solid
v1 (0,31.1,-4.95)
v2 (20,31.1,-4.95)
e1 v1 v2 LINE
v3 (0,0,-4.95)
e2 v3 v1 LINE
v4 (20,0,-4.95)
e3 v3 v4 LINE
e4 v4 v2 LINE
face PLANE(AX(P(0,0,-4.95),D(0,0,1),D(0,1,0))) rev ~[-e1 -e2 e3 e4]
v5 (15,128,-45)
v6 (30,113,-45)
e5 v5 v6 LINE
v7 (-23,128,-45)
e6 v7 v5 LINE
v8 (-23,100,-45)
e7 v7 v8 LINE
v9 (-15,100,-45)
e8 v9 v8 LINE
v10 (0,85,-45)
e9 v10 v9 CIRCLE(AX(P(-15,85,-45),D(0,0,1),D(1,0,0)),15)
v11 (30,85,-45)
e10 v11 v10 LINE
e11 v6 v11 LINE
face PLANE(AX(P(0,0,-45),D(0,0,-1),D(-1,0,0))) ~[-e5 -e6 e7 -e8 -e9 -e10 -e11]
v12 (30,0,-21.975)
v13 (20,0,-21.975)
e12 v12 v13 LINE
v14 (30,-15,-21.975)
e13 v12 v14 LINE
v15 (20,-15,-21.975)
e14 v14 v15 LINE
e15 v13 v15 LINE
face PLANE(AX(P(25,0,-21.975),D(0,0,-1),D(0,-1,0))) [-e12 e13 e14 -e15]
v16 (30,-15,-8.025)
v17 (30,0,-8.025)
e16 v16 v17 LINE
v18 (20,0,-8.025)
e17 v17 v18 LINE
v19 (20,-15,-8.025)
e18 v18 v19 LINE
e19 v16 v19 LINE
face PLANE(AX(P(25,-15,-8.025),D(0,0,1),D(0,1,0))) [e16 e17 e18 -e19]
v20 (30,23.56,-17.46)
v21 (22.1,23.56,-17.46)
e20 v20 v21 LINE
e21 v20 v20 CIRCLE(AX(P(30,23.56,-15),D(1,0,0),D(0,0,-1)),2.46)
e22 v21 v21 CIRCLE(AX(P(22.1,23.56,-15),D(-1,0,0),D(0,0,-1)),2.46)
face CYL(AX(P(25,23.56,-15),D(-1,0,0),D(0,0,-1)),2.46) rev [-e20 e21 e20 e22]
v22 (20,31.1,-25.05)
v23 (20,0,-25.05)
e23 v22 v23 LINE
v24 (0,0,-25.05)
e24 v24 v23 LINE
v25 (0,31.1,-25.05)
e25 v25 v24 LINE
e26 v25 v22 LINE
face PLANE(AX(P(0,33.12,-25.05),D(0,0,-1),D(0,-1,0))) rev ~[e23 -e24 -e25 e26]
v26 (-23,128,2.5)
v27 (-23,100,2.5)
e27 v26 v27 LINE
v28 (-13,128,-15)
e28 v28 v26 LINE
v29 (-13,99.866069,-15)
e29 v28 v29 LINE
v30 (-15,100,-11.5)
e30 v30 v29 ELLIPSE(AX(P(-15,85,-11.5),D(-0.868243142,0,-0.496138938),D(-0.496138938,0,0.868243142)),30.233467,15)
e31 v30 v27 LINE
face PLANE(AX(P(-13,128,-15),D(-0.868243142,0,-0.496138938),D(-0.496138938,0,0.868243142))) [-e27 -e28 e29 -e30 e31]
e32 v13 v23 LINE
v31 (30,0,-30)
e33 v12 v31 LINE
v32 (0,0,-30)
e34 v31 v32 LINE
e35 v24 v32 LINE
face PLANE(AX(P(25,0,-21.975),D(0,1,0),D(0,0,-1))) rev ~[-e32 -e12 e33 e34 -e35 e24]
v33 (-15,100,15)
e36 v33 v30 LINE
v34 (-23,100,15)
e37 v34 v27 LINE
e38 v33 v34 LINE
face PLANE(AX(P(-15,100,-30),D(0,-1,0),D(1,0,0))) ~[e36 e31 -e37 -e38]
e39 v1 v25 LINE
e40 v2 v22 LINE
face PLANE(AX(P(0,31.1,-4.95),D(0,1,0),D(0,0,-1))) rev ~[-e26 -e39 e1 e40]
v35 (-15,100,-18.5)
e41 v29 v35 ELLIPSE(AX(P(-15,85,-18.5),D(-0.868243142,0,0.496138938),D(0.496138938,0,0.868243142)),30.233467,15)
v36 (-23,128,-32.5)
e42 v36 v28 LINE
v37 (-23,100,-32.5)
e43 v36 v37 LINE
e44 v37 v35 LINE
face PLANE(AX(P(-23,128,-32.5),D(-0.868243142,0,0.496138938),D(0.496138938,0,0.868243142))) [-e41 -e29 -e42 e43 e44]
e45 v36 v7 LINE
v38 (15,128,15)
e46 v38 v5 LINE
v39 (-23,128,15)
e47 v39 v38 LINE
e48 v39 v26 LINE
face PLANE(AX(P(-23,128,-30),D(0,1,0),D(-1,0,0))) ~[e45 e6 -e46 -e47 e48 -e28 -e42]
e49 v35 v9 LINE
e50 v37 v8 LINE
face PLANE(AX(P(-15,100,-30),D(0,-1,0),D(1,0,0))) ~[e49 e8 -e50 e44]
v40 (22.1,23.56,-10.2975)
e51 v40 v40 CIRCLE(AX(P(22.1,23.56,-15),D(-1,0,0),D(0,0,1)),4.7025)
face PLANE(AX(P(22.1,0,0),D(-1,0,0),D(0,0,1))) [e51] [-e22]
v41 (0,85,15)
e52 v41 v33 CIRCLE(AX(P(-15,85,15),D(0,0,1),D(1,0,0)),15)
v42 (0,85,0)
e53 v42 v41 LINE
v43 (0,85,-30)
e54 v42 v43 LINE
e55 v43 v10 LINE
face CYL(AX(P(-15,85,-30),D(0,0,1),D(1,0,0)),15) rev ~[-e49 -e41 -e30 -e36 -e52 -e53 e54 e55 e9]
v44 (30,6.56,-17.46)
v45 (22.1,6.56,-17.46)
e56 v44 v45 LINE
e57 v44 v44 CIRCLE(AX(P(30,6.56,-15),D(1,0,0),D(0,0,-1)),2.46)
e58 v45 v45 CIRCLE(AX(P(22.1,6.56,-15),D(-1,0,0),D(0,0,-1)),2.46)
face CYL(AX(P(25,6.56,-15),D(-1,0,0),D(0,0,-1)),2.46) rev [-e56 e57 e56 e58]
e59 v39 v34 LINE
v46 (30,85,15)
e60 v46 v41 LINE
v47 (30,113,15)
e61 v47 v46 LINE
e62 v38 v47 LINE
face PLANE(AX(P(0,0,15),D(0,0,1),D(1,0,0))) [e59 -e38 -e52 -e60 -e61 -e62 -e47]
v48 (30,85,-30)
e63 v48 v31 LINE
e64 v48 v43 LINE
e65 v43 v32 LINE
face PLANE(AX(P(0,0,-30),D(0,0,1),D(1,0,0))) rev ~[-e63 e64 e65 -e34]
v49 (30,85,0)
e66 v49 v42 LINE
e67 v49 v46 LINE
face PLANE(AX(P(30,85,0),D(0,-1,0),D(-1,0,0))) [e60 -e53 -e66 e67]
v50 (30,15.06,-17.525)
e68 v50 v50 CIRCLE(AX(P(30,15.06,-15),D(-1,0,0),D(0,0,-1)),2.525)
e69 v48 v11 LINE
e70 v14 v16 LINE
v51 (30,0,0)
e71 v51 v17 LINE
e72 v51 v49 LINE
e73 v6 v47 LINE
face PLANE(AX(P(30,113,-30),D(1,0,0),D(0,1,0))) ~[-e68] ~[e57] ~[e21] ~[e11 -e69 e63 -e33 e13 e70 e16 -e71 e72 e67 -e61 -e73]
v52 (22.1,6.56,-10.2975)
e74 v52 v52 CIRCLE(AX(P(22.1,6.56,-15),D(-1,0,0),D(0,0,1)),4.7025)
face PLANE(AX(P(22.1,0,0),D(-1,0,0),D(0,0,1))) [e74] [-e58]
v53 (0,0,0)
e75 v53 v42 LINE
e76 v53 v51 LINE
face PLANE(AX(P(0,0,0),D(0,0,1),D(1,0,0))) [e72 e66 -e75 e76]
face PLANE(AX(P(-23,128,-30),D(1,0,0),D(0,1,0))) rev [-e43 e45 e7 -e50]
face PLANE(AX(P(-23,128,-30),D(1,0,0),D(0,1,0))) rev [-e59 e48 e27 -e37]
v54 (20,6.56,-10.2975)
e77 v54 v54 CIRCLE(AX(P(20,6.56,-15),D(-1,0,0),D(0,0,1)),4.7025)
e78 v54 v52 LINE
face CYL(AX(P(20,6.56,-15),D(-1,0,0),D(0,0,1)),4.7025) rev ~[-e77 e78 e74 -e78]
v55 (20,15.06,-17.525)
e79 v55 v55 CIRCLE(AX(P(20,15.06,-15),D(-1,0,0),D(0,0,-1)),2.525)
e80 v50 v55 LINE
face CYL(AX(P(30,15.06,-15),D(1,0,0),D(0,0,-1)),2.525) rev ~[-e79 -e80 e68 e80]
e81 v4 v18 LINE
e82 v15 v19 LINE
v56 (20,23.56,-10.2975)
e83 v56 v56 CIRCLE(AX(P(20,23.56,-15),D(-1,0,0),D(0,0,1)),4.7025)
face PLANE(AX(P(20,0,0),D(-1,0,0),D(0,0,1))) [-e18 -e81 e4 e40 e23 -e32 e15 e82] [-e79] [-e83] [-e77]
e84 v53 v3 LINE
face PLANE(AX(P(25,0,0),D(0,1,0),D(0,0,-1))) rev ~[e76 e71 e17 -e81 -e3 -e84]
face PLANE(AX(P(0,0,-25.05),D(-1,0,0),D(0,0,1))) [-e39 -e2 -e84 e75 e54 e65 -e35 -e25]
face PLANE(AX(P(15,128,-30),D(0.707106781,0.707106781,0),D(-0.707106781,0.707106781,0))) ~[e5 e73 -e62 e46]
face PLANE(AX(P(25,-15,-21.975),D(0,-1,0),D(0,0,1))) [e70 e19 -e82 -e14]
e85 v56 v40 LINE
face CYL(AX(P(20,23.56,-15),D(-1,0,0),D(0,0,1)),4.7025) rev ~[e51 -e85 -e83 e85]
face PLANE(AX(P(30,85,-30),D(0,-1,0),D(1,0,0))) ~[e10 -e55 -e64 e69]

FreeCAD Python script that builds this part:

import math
import FreeCAD as App
import Part
import Sketcher

V = App.Vector
Q = App.Units.Quantity


def add_polygon(sketch, points):
    """Adds a closed chain of lines whose ends are joined by coincident constraints."""
    first, n = sketch.GeometryCount, len(points)
    for a, b in zip(points, points[1:] + points[:1]):
        sketch.addGeometry(Part.LineSegment(App.Vector(*a, 0), App.Vector(*b, 0)), False)
    for i in range(n):
        sketch.addConstraint(Sketcher.Constraint("Coincident", first + i, 2, first + (i + 1) % n, 1))

doc = App.newDocument("Part")
body = doc.addObject("PartDesign::Body", "Body")

# Sketch on XY plane
sketch1 = body.newObject("Sketcher::SketchObject", "Sketch")
sketch1.AttachmentSupport = (doc.getObject("XY_Plane"), [""])
sketch1.MapMode = "FlatFace"
add_polygon(sketch1, [(0, 40), (0, 0), (25, 0), (25, 40)])  # lines 0-3
sketch1.addConstraint(Sketcher.Constraint("Vertical", 0))
sketch1.addConstraint(Sketcher.Constraint("Horizontal", 1))
sketch1.addConstraint(Sketcher.Constraint("Vertical", 2))
sketch1.addConstraint(Sketcher.Constraint("Horizontal", 3))
sketch1.addConstraint(Sketcher.Constraint("Coincident", 0, 2, -1, 1))
sketch1.addConstraint(Sketcher.Constraint("DistanceX", 1, 1, 1, 2, 25.0))
sketch1.addConstraint(Sketcher.Constraint("DistanceY", 0, 2, 0, 1, 40.0))
pad1 = body.newObject("PartDesign::Pad", "Pad")
pad1.Profile = sketch1
pad1.Length = 30
pad1.Reversed = True

# Sketch on YZ plane
sketch2 = body.newObject("Sketcher::SketchObject", "Sketch001")
sketch2.AttachmentSupport = (doc.getObject("YZ_Plane"), [""])
sketch2.MapMode = "FlatFace"
sketch2.AttachmentOffset = App.Placement(V(0, 0, 25), App.Rotation())
sketch2.addGeometry(Part.Circle(V(6.6, -15, 0), V(0, 0, 1), 2.5), False)
sketch2.addConstraint(Sketcher.Constraint("Diameter", 0, 4.92))
sketch2.addConstraint(Sketcher.Constraint("DistanceY", 0, 3, -1, 1, 15.0))
sketch2.addConstraint(Sketcher.Constraint("DistanceX", -1, 1, 0, 3, 6.56))
pocket1 = body.newObject("PartDesign::Pocket", "Pocket")
pocket1.Profile = sketch2
pocket1.Length = 30

# Sketch on YZ plane
sketch3 = body.newObject("Sketcher::SketchObject", "Sketch002")
sketch3.AttachmentSupport = (doc.getObject("YZ_Plane"), [""])
sketch3.MapMode = "FlatFace"
add_polygon(sketch3, [(0, -25), (0, -5), (33, -5), (33, -25)])  # lines 0-3
sketch3.addConstraint(Sketcher.Constraint("Vertical", 0))
sketch3.addConstraint(Sketcher.Constraint("Horizontal", 1))
sketch3.addConstraint(Sketcher.Constraint("Vertical", 2))
sketch3.addConstraint(Sketcher.Constraint("Horizontal", 3))
sketch3.addConstraint(Sketcher.Constraint("PointOnObject", 0, 2, -2))
sketch3.addConstraint(Sketcher.Constraint("DistanceY", 0, 1, 0, 2, 20.1))
sketch3.addConstraint(Sketcher.Constraint("DistanceX", 1, 1, 1, 2, 33.12))
sketch3.addConstraint(Sketcher.Constraint("DistanceY", 0, 2, -1, 1, 4.95))
pocket2 = body.newObject("PartDesign::Pocket", "Pocket001")
pocket2.Profile = sketch3
pocket2.Length = 20
pocket2.Reversed = True

# Sketch on XZ plane
sketch4 = body.newObject("Sketcher::SketchObject", "Sketch003")
sketch4.AttachmentSupport = (doc.getObject("XZ_Plane"), [""])
sketch4.MapMode = "FlatFace"
add_polygon(sketch4, [(25, -8), (20, -8), (20, -22), (25, -22)])  # lines 0-3
sketch4.addConstraint(Sketcher.Constraint("Horizontal", 0))
sketch4.addConstraint(Sketcher.Constraint("Vertical", 1))
sketch4.addConstraint(Sketcher.Constraint("Horizontal", 2))
sketch4.addConstraint(Sketcher.Constraint("Vertical", 3))
sketch4.addConstraint(Sketcher.Constraint("DistanceY", 1, 2, 1, 1, 13.95))
sketch4.addConstraint(Sketcher.Constraint("DistanceX", 0, 2, 0, 1, 5.0))
sketch4.addConstraint(Sketcher.Constraint("DistanceX", -1, 1, 0, 2, 20.0))
sketch4.addConstraint(Sketcher.Constraint("DistanceY", 0, 2, -1, 1, 8.025))
pad2 = body.newObject("PartDesign::Pad", "Pad001")
pad2.Profile = sketch4
pad2.Length = 15

# Sketch on YZ plane
sketch5 = body.newObject("Sketcher::SketchObject", "Sketch004")
sketch5.AttachmentSupport = (doc.getObject("YZ_Plane"), [""])
sketch5.MapMode = "FlatFace"
sketch5.AttachmentOffset = App.Placement(V(0, 0, 20), App.Rotation())
sketch5.addGeometry(Part.Circle(V(6.6, -15, 0), V(0, 0, 1), 4.7), False)
sketch5.addGeometry(Part.Circle(V(6.6, -15, 0), V(0, 0, 1), 2.5), False)
sketch5.addConstraint(Sketcher.Constraint("Coincident", 1, 3, 0, 3))
sketch5.addConstraint(Sketcher.Constraint("Diameter", 0, 9.405))
sketch5.addConstraint(Sketcher.Constraint("Diameter", 1, 4.92))
sketch5.addConstraint(Sketcher.Constraint("DistanceY", 0, 3, -1, 1, 15.0))
sketch5.addConstraint(Sketcher.Constraint("DistanceX", -1, 1, 0, 3, 6.56))
pocket3 = body.newObject("PartDesign::Pocket", "Pocket002")
pocket3.Profile = sketch5
pocket3.Length = 2.1
pocket3.Reversed = True

# Sketch on YZ plane
sketch6 = body.newObject("Sketcher::SketchObject", "Sketch005")
sketch6.AttachmentSupport = (doc.getObject("YZ_Plane"), [""])
sketch6.MapMode = "FlatFace"
sketch6.AttachmentOffset = App.Placement(V(0, 0, 25), App.Rotation())
sketch6.addGeometry(Part.Circle(V(23.6, -15, 0), V(0, 0, 1), 2.5), False)
sketch6.addConstraint(Sketcher.Constraint("Diameter", 0, 4.92))
sketch6.addConstraint(Sketcher.Constraint("DistanceY", 0, 3, -1, 1, 15.0))
sketch6.addConstraint(Sketcher.Constraint("DistanceX", -1, 1, 0, 3, 23.56))
pocket4 = body.newObject("PartDesign::Pocket", "Pocket003")
pocket4.Profile = sketch6
pocket4.Length = 10

# Sketch on YZ plane
sketch7 = body.newObject("Sketcher::SketchObject", "Sketch006")
sketch7.AttachmentSupport = (doc.getObject("YZ_Plane"), [""])
sketch7.MapMode = "FlatFace"
sketch7.AttachmentOffset = App.Placement(V(0, 0, 20), App.Rotation())
sketch7.addGeometry(Part.Circle(V(23.6, -15, 0), V(0, 0, 1), 4.7), False)
sketch7.addGeometry(Part.Circle(V(23.6, -15, 0), V(0, 0, 1), 2.5), False)
sketch7.addConstraint(Sketcher.Constraint("Coincident", 1, 3, 0, 3))
sketch7.addConstraint(Sketcher.Constraint("Diameter", 0, 9.405))
sketch7.addConstraint(Sketcher.Constraint("Diameter", 1, 4.92))
sketch7.addConstraint(Sketcher.Constraint("DistanceY", 0, 3, -1, 1, 15.0))
sketch7.addConstraint(Sketcher.Constraint("DistanceX", -1, 1, 0, 3, 23.56))
pocket5 = body.newObject("PartDesign::Pocket", "Pocket004")
pocket5.Profile = sketch7
pocket5.Length = 2.1
pocket5.Reversed = True

# Sketch on YZ plane
sketch8 = body.newObject("Sketcher::SketchObject", "Sketch007")
sketch8.AttachmentSupport = (doc.getObject("YZ_Plane"), [""])
sketch8.MapMode = "FlatFace"
sketch8.AttachmentOffset = App.Placement(V(0, 0, 25), App.Rotation())
add_polygon(sketch8, [(0, -30), (40, -30), (40, 0), (0, 0), (0, -8), (-15, -8), (-15, -22), (0, -22)])  # lines 0-7
sketch8.addGeometry(Part.Circle(V(6.6, -15, 0), V(0, 0, 1), 2.5), False)  # 8
sketch8.addGeometry(Part.Circle(V(23.6, -15, 0), V(0, 0, 1), 2.5), False)  # 9
sketch8.addConstraint(Sketcher.Constraint("Horizontal", 0))
sketch8.addConstraint(Sketcher.Constraint("Vertical", 1))
sketch8.addConstraint(Sketcher.Constraint("Horizontal", 2))
sketch8.addConstraint(Sketcher.Constraint("Vertical", 3))
sketch8.addConstraint(Sketcher.Constraint("Horizontal", 4))
sketch8.addConstraint(Sketcher.Constraint("Vertical", 5))
sketch8.addConstraint(Sketcher.Constraint("Horizontal", 6))
sketch8.addConstraint(Sketcher.Constraint("Vertical", 7))
sketch8.addConstraint(Sketcher.Constraint("Coincident", 2, 2, -1, 1))
sketch8.addConstraint(Sketcher.Constraint("Equal", 8, 9))
sketch8.addConstraint(Sketcher.Constraint("PointOnObject", 6, 2, -2))
sketch8.addConstraint(Sketcher.Constraint("Horizontal", 8, 3, 9, 3))
sketch8.addConstraint(Sketcher.Constraint("Equal", 3, 7))
sketch8.addConstraint(Sketcher.Constraint("Diameter", 8, 4.92))
sketch8.addConstraint(Sketcher.Constraint("DistanceX", 0, 1, 0, 2, 40.0))
sketch8.addConstraint(Sketcher.Constraint("DistanceX", 4, 2, 4, 1, 15.0))
sketch8.addConstraint(Sketcher.Constraint("DistanceY", 1, 1, 1, 2, 30.0))
sketch8.addConstraint(Sketcher.Constraint("DistanceY", 8, 3, -1, 1, 15.0))
sketch8.addConstraint(Sketcher.Constraint("DistanceX", 8, 3, 9, 3, 17.0))
sketch8.addConstraint(Sketcher.Constraint("DistanceY", 5, 2, 5, 1, 13.95))
sketch8.addConstraint(Sketcher.Constraint("DistanceX", -1, 1, 8, 3, 6.56))
pad3 = body.newObject("PartDesign::Pad", "Pad002")
pad3.Profile = sketch8
pad3.Length = 5

# Sketch on XZ plane
sketch9 = body.newObject("Sketcher::SketchObject", "Sketch008")
sketch9.AttachmentSupport = (doc.getObject("XZ_Plane"), [""])
sketch9.MapMode = "FlatFace"
sketch9.AttachmentOffset = App.Placement(V(0, 0, -40), App.Rotation())
add_polygon(sketch9, [(30, -30), (0, -30), (0, 0), (30, 0)])  # lines 0-3
sketch9.addConstraint(Sketcher.Constraint("Horizontal", 0))
sketch9.addConstraint(Sketcher.Constraint("Vertical", 1))
sketch9.addConstraint(Sketcher.Constraint("Horizontal", 2))
sketch9.addConstraint(Sketcher.Constraint("Vertical", 3))
sketch9.addConstraint(Sketcher.Constraint("Coincident", 1, 2, -1, 1))
sketch9.addConstraint(Sketcher.Constraint("Equal", 2, 1))
sketch9.addConstraint(Sketcher.Constraint("DistanceX", 0, 2, 0, 1, 30.0))
pad4 = body.newObject("PartDesign::Pad", "Pad003")
pad4.Profile = sketch9
pad4.Length = 30
pad4.Reversed = True

# Sketch on YZ plane
sketch10 = body.newObject("Sketcher::SketchObject", "Sketch009")
sketch10.AttachmentSupport = (doc.getObject("YZ_Plane"), [""])
sketch10.MapMode = "FlatFace"
sketch10.AttachmentOffset = App.Placement(V(0, 0, 30), App.Rotation())
sketch10.addGeometry(Part.Circle(V(15.1, -15, 0), V(0, 0, 1), 2.5), False)
sketch10.addConstraint(Sketcher.Constraint("Diameter", 0, 5.05))
sketch10.addConstraint(Sketcher.Constraint("DistanceY", 0, 3, -1, 1, 15.0))
sketch10.addConstraint(Sketcher.Constraint("DistanceX", -1, 1, 0, 3, 15.06))
pocket6 = body.newObject("PartDesign::Pocket", "Pocket005")
pocket6.Profile = sketch10
pocket6.Length = 30

# Sketch on XY plane
sketch11 = body.newObject("Sketcher::SketchObject", "Sketch010")
sketch11.AttachmentSupport = (doc.getObject("XY_Plane"), [""])
sketch11.MapMode = "FlatFace"
sketch11.addGeometry(Part.LineSegment(V(0, 70, 0), V(30, 70, 0)), False)
sketch11.addGeometry(Part.LineSegment(V(30, 70, 0), V(30, 113, 0)), False)
sketch11.addGeometry(Part.LineSegment(V(30, 113, 0), V(15, 128, 0)), False)
sketch11.addGeometry(Part.LineSegment(V(15, 128, 0), V(-23, 128, 0)), False)
sketch11.addGeometry(Part.LineSegment(V(-23, 128, 0), V(-23, 100, 0)), False)
sketch11.addGeometry(Part.LineSegment(V(-23, 100, 0), V(-15, 100, 0)), False)
sketch11.addGeometry(Part.ArcOfCircle(Part.Circle(V(-15, 85, 0), V(0, 0, 1), 15), math.radians(0), math.radians(90)), False)
sketch11.addGeometry(Part.LineSegment(V(0, 85, 0), V(0, 70, 0)), False)
sketch11.addConstraint(Sketcher.Constraint("Coincident", 0, 2, 1, 1))
sketch11.addConstraint(Sketcher.Constraint("Coincident", 1, 2, 2, 1))
sketch11.addConstraint(Sketcher.Constraint("Coincident", 2, 2, 3, 1))
sketch11.addConstraint(Sketcher.Constraint("Coincident", 3, 2, 4, 1))
sketch11.addConstraint(Sketcher.Constraint("Coincident", 4, 2, 5, 1))
sketch11.addConstraint(Sketcher.Constraint("Tangent", 5, 2, 6, 2))
sketch11.addConstraint(Sketcher.Constraint("Tangent", 6, 1, 7, 1))
sketch11.addConstraint(Sketcher.Constraint("Coincident", 7, 2, 0, 1))
sketch11.addConstraint(Sketcher.Constraint("Horizontal", 0))
sketch11.addConstraint(Sketcher.Constraint("Vertical", 1))
sketch11.addConstraint(Sketcher.Constraint("Horizontal", 3))
sketch11.addConstraint(Sketcher.Constraint("Vertical", 4))
sketch11.addConstraint(Sketcher.Constraint("Horizontal", 5))
sketch11.addConstraint(Sketcher.Constraint("Vertical", 7))
sketch11.addConstraint(Sketcher.Constraint("PointOnObject", 6, 1, -2))
sketch11.addConstraint(Sketcher.Constraint("Radius", 6, 15.0))
sketch11.addConstraint(Sketcher.Constraint("DistanceX", 0, 1, 0, 2, 30.0))
sketch11.addConstraint(Sketcher.Constraint("DistanceY", 4, 2, 4, 1, 28.0))
sketch11.addConstraint(Sketcher.Constraint("DistanceY", 7, 2, 7, 1, 15.0))
sketch11.addConstraint(Sketcher.Constraint("DistanceX", -1, 1, 2, 2, 15.0))
sketch11.addConstraint(Sketcher.Constraint("DistanceY", 6, 3, 1, 2, 28.0))
sketch11.addConstraint(Sketcher.Constraint("DistanceX", 3, 2, 3, 1, 38.0))
sketch11.addConstraint(Sketcher.Constraint("DistanceY", -1, 1, 6, 3, 85.0))
pad5 = body.newObject("PartDesign::Pad", "Pad004")
pad5.Profile = sketch11
pad5.Length = 30
pad5.Reversed = True

# Sketch on YZ plane
sketch12 = body.newObject("Sketcher::SketchObject", "Sketch011")
sketch12.AttachmentSupport = (doc.getObject("YZ_Plane"), [""])
sketch12.MapMode = "FlatFace"
add_polygon(sketch12, [(33.1, -5), (33.1, -25.1), (31.1, -25.1), (31.1, -5)])  # lines 0-3
sketch12.addConstraint(Sketcher.Constraint("Vertical", 0))
sketch12.addConstraint(Sketcher.Constraint("Horizontal", 1))
sketch12.addConstraint(Sketcher.Constraint("Vertical", 2))
sketch12.addConstraint(Sketcher.Constraint("Horizontal", 3))
sketch12.addConstraint(Sketcher.Constraint("DistanceX", 1, 2, 1, 1, 2.02))
sketch12.addConstraint(Sketcher.Constraint("DistanceY", 0, 2, 0, 1, 20.1))
sketch12.addConstraint(Sketcher.Constraint("DistanceX", -1, 1, 1, 2, 31.1))
sketch12.addConstraint(Sketcher.Constraint("DistanceY", 0, 2, -1, 1, 25.05))
pad6 = body.newObject("PartDesign::Pad", "Pad005")
pad6.Profile = sketch12
pad6.Length = 20

# Sketch on XY plane
sketch13 = body.newObject("Sketcher::SketchObject", "Sketch012")
sketch13.AttachmentSupport = (doc.getObject("XY_Plane"), [""])
sketch13.MapMode = "FlatFace"
sketch13.addGeometry(Part.ArcOfCircle(Part.Circle(V(-15, 85, 0), V(0, 0, 1), 15), math.radians(0), math.radians(90)), False)
sketch13.addGeometry(Part.LineSegment(V(0, 85, 0), V(30, 85, 0)), False)
sketch13.addGeometry(Part.LineSegment(V(30, 85, 0), V(30, 113, 0)), False)
sketch13.addGeometry(Part.LineSegment(V(30, 113, 0), V(15, 128, 0)), False)
sketch13.addGeometry(Part.LineSegment(V(15, 128, 0), V(-23, 128, 0)), False)
sketch13.addGeometry(Part.LineSegment(V(-23, 128, 0), V(-23, 100, 0)), False)
sketch13.addGeometry(Part.LineSegment(V(-23, 100, 0), V(-15, 100, 0)), False)
sketch13.addConstraint(Sketcher.Constraint("Coincident", 0, 1, 1, 1))
sketch13.addConstraint(Sketcher.Constraint("Coincident", 1, 2, 2, 1))
sketch13.addConstraint(Sketcher.Constraint("Coincident", 2, 2, 3, 1))
sketch13.addConstraint(Sketcher.Constraint("Coincident", 3, 2, 4, 1))
sketch13.addConstraint(Sketcher.Constraint("Coincident", 4, 2, 5, 1))
sketch13.addConstraint(Sketcher.Constraint("Coincident", 5, 2, 6, 1))
sketch13.addConstraint(Sketcher.Constraint("Tangent", 6, 2, 0, 2))
sketch13.addConstraint(Sketcher.Constraint("Horizontal", 1))
sketch13.addConstraint(Sketcher.Constraint("Vertical", 2))
sketch13.addConstraint(Sketcher.Constraint("Horizontal", 4))
sketch13.addConstraint(Sketcher.Constraint("Vertical", 5))
sketch13.addConstraint(Sketcher.Constraint("Horizontal", 6))
sketch13.addConstraint(Sketcher.Constraint("PointOnObject", 0, 1, -2))
sketch13.addConstraint(Sketcher.Constraint("Equal", 2, 5))
sketch13.addConstraint(Sketcher.Constraint("Radius", 0, 15.0))
sketch13.addConstraint(Sketcher.Constraint("DistanceX", 1, 1, 1, 2, 30.0))
sketch13.addConstraint(Sketcher.Constraint("DistanceX", 4, 2, 4, 1, 38.0))
sketch13.addConstraint(Sketcher.Constraint("DistanceX", 6, 1, 6, 2, 8.0))
sketch13.addConstraint(Sketcher.Constraint("DistanceY", 2, 1, 2, 2, 28.0))
sketch13.addConstraint(Sketcher.Constraint("Angle", 3, Q("135 deg")))
sketch13.addConstraint(Sketcher.Constraint("DistanceY", -1, 1, 0, 3, 85.0))
pad7 = body.newObject("PartDesign::Pad", "Pad006")
pad7.Profile = sketch13
pad7.Length = 15
doc.recompute()

datumplane = body.newObject("PartDesign::Plane", "DatumPlane")
datumplane.AttachmentSupport = (doc.getObject("XY_Plane"), [""])
datumplane.MapMode = "FlatFace"
datumplane.AttachmentOffset = App.Placement(V(0, 0, -15), App.Rotation())
mirrored = body.newObject("PartDesign::Mirrored", "Mirrored")
mirrored.Originals = [pad7]
mirrored.MirrorPlane = (datumplane, [""])
body.Tip = mirrored

# Sketch on XZ plane
sketch14 = body.newObject("Sketcher::SketchObject", "Sketch013")
sketch14.AttachmentSupport = (doc.getObject("XZ_Plane"), [""])
sketch14.MapMode = "FlatFace"
sketch14.AttachmentOffset = App.Placement(V(0, 0, -128), App.Rotation())
add_polygon(sketch14, [(-23, -32), (-23, 2), (-13, -15)])  # lines 0-2
sketch14.addConstraint(Sketcher.Constraint("Vertical", 0))
sketch14.addConstraint(Sketcher.Constraint("Equal", 1, 2))
sketch14.addConstraint(Sketcher.Constraint("DistanceY", 1, 2, 0, 2, 17.5))
sketch14.addConstraint(Sketcher.Constraint("DistanceX", 0, 2, -1, 1, 23.0))
sketch14.addConstraint(Sketcher.Constraint("DistanceX", 1, 2, -1, 1, 13.0))
sketch14.addConstraint(Sketcher.Constraint("DistanceY", 1, 2, -1, 1, 15.0))
pocket7 = body.newObject("PartDesign::Pocket", "Pocket006")
pocket7.Profile = sketch14
pocket7.Type = "ThroughAll"
pocket7.Reversed = True

doc.recompute()
